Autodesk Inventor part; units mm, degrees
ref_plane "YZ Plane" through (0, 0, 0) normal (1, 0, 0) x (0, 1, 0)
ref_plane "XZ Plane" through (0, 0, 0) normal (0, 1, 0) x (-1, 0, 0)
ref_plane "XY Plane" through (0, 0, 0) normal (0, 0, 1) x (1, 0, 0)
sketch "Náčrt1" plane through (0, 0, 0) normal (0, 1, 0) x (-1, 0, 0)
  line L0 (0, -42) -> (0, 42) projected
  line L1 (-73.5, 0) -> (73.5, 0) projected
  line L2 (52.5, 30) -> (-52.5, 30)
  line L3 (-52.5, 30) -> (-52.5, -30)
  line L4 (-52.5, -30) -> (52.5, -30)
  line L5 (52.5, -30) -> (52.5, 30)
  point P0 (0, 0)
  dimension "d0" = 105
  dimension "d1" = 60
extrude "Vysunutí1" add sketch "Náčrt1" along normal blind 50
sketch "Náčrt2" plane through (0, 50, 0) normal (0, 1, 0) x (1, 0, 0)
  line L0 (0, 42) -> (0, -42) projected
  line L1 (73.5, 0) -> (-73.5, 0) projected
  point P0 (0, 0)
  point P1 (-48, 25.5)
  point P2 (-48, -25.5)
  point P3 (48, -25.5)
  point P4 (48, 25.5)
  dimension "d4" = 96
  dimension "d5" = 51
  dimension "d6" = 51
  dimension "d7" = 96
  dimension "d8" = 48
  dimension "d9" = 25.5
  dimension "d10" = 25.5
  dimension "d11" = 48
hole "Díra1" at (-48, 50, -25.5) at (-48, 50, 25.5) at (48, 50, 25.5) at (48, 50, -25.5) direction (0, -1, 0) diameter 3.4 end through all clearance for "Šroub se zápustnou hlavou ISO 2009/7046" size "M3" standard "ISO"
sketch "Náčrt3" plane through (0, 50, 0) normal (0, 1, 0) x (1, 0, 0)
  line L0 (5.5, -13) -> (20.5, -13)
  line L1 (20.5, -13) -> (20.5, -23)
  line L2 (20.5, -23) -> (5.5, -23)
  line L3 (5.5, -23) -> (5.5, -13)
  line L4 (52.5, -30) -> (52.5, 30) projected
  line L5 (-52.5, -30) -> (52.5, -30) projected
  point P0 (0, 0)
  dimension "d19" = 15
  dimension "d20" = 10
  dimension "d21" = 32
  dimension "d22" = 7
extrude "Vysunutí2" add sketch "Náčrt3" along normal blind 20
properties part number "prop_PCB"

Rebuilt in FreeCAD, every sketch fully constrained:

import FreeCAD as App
import Part
import Sketcher

V = App.Vector


def add_polygon(sketch, points):
    """Adds a closed chain of lines whose ends are joined by coincident constraints."""
    first, n = sketch.GeometryCount, len(points)
    for a, b in zip(points, points[1:] + points[:1]):
        sketch.addGeometry(Part.LineSegment(App.Vector(*a, 0), App.Vector(*b, 0)), False)
    for i in range(n):
        sketch.addConstraint(Sketcher.Constraint("Coincident", first + i, 2, first + (i + 1) % n, 1))

doc = App.newDocument("Part")
body = doc.addObject("PartDesign::Body", "Body")

sketch1 = body.newObject("Sketcher::SketchObject", "Sketch")
sketch1.AttachmentSupport = (doc.getObject("XZ_Plane"), [""])
sketch1.MapMode = "FlatFace"
add_polygon(sketch1, [(52.5, -30), (-52.5, -30), (-52.5, 30), (52.5, 30)])
sketch1.addConstraint(Sketcher.Constraint("Horizontal", 0))
sketch1.addConstraint(Sketcher.Constraint("Vertical", 1))
sketch1.addConstraint(Sketcher.Constraint("Horizontal", 2))
sketch1.addConstraint(Sketcher.Constraint("Vertical", 3))
sketch1.addConstraint(Sketcher.Constraint("Symmetric", 0, 2, 2, 2, -1, 1))
sketch1.addConstraint(Sketcher.Constraint("DistanceX", 0, 2, 0, 1, 105.0))
sketch1.addConstraint(Sketcher.Constraint("DistanceY", 1, 1, 1, 2, 60.0))
pad1 = body.newObject("PartDesign::Pad", "Pad")
pad1.Profile = sketch1
pad1.Length = 50
pad1.Reversed = True

sketch2 = body.newObject("Sketcher::SketchObject", "Sketch001")
sketch2.AttachmentSupport = (doc.getObject("XZ_Plane"), [""])
sketch2.MapMode = "FlatFace"
sketch2.AttachmentOffset = App.Placement(V(0, 0, -50), App.Rotation())
sketch2.addGeometry(Part.Circle(V(-48, -25.5, 0), V(0, 0, 1), 1.7), False)
sketch2.addGeometry(Part.Circle(V(-48, 25.5, 0), V(0, 0, 1), 1.7), False)
sketch2.addGeometry(Part.Circle(V(48, 25.5, 0), V(0, 0, 1), 1.7), False)
sketch2.addGeometry(Part.Circle(V(48, -25.5, 0), V(0, 0, 1), 1.7), False)
sketch2.addConstraint(Sketcher.Constraint("Equal", 0, 1))
sketch2.addConstraint(Sketcher.Constraint("Equal", 1, 2))
sketch2.addConstraint(Sketcher.Constraint("Equal", 2, 3))
sketch2.addConstraint(Sketcher.Constraint("Symmetric", 0, 3, 2, 3, -1, 1))
sketch2.addConstraint(Sketcher.Constraint("Symmetric", 1, 3, 3, 3, -1, 1))
sketch2.addConstraint(Sketcher.Constraint("Symmetric", 1, 3, 2, 3, -2))
sketch2.addConstraint(Sketcher.Constraint("Diameter", 0, 3.4))
sketch2.addConstraint(Sketcher.Constraint("DistanceX", 0, 3, -1, 1, 48.0))
sketch2.addConstraint(Sketcher.Constraint("DistanceY", 0, 3, 1, 3, 51.0))
doc.recompute()
hole = body.newObject("PartDesign::Hole", "Hole")
hole.Profile = sketch2
hole.ThreadType = "None"
hole.Diameter = 3.4
hole.DepthType = "ThroughAll"
hole.Reversed = True

sketch3 = body.newObject("Sketcher::SketchObject", "Sketch002")
sketch3.AttachmentSupport = (doc.getObject("XZ_Plane"), [""])
sketch3.MapMode = "FlatFace"
sketch3.AttachmentOffset = App.Placement(V(0, 0, -50), App.Rotation())
add_polygon(sketch3, [(20.5, 13), (5.5, 13), (5.5, 23), (20.5, 23)])
sketch3.addConstraint(Sketcher.Constraint("Horizontal", 0))
sketch3.addConstraint(Sketcher.Constraint("Vertical", 1))
sketch3.addConstraint(Sketcher.Constraint("Horizontal", 2))
sketch3.addConstraint(Sketcher.Constraint("Vertical", 3))
sketch3.addConstraint(Sketcher.Constraint("DistanceX", 0, 2, 0, 1, 15.0))
sketch3.addConstraint(Sketcher.Constraint("DistanceY", 1, 1, 1, 2, 10.0))
sketch3.addConstraint(Sketcher.Constraint("DistanceY", -1, 1, 0, 2, 13.0))
sketch3.addConstraint(Sketcher.Constraint("DistanceX", -1, 1, 0, 2, 5.5))
pad2 = body.newObject("PartDesign::Pad", "Pad001")
pad2.Profile = sketch3
pad2.Length = 20
pad2.Reversed = True

doc.recompute()
